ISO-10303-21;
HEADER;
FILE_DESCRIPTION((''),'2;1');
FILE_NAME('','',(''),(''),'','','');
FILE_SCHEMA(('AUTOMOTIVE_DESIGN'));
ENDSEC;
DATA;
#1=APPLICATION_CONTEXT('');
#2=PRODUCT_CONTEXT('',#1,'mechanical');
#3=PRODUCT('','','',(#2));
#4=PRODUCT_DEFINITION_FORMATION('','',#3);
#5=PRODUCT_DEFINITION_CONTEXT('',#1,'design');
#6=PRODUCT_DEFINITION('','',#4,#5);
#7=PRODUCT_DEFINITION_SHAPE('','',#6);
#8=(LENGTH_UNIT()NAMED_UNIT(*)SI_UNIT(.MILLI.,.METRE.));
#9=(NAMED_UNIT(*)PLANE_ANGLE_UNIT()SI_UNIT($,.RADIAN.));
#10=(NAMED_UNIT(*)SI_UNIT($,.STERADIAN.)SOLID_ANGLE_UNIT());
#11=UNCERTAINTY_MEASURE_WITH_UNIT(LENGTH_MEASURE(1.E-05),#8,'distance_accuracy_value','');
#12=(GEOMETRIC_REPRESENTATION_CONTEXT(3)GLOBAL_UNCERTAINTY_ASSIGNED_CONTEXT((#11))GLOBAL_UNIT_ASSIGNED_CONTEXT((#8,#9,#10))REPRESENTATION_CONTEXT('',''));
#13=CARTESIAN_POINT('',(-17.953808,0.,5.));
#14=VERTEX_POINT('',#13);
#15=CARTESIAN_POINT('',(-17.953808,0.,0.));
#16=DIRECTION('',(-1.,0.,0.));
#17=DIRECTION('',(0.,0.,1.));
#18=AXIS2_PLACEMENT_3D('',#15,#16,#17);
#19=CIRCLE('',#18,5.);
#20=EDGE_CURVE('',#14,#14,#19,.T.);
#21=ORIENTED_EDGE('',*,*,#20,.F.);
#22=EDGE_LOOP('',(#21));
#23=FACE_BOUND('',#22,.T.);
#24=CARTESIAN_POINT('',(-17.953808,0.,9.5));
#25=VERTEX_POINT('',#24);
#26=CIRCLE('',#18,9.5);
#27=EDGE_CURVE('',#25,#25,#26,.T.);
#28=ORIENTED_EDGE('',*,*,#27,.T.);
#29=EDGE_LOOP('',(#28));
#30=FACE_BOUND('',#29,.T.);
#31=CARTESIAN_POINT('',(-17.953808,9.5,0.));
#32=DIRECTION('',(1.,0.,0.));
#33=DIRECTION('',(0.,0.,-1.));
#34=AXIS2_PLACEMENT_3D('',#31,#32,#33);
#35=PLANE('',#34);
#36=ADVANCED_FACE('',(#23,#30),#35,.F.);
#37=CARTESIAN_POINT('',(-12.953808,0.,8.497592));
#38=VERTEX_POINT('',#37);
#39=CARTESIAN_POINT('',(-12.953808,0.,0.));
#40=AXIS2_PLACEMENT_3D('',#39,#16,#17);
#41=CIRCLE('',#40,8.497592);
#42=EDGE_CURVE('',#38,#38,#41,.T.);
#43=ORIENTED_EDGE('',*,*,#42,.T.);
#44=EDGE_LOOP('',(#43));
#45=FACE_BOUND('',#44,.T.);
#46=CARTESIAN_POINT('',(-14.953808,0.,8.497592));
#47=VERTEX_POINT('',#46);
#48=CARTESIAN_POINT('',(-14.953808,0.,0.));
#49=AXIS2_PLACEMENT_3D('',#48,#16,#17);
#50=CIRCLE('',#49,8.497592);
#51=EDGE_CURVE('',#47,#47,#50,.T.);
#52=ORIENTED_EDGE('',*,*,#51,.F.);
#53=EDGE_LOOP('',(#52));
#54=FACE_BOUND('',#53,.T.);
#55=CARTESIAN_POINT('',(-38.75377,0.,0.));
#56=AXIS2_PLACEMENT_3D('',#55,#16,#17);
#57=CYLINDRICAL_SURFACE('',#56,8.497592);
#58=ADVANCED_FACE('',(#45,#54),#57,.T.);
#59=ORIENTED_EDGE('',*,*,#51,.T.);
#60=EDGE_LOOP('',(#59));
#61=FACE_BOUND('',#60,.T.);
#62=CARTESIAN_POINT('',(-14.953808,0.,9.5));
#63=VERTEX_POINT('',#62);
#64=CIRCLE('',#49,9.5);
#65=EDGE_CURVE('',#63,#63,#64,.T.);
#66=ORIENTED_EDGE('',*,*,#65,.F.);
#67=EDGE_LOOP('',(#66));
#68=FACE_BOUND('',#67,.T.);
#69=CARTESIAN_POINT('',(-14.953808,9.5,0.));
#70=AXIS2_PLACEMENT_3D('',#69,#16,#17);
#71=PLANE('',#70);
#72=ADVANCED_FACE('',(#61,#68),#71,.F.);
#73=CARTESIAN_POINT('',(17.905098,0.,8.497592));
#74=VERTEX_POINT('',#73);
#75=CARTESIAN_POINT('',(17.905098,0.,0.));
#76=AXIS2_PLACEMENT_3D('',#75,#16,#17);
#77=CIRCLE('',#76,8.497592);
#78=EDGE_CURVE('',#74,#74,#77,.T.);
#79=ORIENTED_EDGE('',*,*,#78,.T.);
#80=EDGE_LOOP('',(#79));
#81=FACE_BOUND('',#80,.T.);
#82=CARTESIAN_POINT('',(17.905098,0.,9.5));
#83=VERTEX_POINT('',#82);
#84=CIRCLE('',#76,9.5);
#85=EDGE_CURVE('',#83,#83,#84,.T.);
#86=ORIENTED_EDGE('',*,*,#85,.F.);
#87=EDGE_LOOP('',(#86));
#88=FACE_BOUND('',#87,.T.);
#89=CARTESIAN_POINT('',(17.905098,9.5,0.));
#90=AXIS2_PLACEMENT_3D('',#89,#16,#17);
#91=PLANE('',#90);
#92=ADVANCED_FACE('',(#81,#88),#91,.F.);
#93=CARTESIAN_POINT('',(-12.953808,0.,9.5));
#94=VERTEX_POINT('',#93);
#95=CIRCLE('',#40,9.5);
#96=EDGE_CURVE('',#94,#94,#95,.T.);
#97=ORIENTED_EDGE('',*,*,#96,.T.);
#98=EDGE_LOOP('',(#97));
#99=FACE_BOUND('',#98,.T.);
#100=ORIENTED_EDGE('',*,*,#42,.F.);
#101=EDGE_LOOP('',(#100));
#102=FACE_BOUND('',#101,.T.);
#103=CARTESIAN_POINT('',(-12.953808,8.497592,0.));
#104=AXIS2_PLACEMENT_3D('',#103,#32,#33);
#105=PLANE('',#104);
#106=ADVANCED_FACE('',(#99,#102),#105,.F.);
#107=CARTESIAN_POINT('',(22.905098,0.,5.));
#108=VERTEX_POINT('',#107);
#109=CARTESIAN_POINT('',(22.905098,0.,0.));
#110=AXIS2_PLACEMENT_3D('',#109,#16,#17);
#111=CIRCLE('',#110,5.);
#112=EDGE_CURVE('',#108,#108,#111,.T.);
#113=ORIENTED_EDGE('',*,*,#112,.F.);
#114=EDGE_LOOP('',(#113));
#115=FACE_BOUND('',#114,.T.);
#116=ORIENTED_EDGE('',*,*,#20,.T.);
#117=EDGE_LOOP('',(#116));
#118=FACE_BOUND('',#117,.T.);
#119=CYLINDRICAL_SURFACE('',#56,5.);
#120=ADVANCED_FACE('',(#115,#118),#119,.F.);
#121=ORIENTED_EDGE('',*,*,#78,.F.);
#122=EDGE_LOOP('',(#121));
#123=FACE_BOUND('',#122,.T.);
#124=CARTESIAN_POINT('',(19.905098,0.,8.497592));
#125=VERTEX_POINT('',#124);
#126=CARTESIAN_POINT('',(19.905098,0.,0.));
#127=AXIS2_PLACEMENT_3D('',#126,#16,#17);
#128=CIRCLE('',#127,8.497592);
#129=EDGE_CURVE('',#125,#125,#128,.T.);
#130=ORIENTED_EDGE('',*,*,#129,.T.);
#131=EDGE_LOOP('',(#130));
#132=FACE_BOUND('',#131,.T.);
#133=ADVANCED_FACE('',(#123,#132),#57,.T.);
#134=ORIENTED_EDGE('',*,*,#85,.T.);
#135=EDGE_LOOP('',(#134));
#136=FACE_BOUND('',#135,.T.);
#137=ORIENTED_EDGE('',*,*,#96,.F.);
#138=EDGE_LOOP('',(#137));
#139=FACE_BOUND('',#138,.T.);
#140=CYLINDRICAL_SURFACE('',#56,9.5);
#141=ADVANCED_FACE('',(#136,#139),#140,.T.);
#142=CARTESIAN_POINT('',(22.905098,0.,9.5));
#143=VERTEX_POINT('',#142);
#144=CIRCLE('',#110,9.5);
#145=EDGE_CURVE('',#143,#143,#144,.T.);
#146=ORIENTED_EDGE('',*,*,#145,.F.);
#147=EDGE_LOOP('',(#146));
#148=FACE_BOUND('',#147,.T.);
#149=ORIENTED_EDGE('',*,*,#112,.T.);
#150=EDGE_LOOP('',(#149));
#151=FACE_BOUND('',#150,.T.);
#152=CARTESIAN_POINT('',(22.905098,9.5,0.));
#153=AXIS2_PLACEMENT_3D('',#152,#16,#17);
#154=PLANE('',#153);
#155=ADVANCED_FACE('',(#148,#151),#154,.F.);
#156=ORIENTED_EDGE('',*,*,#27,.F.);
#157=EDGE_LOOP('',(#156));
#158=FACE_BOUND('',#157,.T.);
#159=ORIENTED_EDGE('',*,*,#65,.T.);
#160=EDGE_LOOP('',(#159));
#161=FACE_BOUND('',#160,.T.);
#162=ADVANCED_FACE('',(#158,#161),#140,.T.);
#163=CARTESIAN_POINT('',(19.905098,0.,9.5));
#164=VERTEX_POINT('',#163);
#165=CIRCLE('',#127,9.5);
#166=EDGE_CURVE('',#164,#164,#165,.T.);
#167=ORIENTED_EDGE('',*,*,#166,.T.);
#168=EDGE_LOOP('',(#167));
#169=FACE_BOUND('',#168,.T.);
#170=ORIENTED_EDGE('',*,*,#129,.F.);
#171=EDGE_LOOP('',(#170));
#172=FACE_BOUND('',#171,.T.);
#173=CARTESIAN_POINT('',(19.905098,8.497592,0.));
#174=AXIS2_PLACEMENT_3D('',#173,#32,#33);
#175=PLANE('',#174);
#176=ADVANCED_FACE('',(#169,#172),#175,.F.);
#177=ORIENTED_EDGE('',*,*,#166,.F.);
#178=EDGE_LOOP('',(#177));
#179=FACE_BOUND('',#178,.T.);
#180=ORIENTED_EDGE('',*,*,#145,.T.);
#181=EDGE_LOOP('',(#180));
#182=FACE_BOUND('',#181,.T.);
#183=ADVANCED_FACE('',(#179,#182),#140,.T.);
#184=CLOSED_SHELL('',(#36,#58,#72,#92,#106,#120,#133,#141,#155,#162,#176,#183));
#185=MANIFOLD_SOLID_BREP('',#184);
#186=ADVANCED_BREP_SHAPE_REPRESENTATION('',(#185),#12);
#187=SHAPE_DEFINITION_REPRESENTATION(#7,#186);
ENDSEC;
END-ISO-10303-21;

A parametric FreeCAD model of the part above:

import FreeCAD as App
import Part
import Sketcher


def add_polygon(sketch, points):
    """Adds a closed chain of lines whose ends are joined by coincident constraints."""
    first, n = sketch.GeometryCount, len(points)
    for a, b in zip(points, points[1:] + points[:1]):
        sketch.addGeometry(Part.LineSegment(App.Vector(*a, 0), App.Vector(*b, 0)), False)
    for i in range(n):
        sketch.addConstraint(Sketcher.Constraint("Coincident", first + i, 2, first + (i + 1) % n, 1))

doc = App.newDocument("Part")
body = doc.addObject("PartDesign::Body", "Body")

# Sketch on XY plane
sketch1 = body.newObject("Sketcher::SketchObject", "Sketch")
sketch1.AttachmentSupport = (doc.getObject("XY_Plane"), [""])
sketch1.MapMode = "FlatFace"
add_polygon(sketch1, [(-15, 9.5), (-18, 9.5), (-18, 5), (22.9, 5), (22.9, 9.5), (19.9, 9.5), (19.9, 8.5), (17.9, 8.5), (17.9, 9.5), (-13, 9.5), (-13, 8.5), (-15, 8.5)])  # lines 0-11
sketch1.addConstraint([
    Sketcher.Constraint("Horizontal", 0),
    Sketcher.Constraint("Vertical", 1),
    Sketcher.Constraint("Horizontal", 2),
    Sketcher.Constraint("Vertical", 3),
    Sketcher.Constraint("Horizontal", 4),
    Sketcher.Constraint("Vertical", 5),
    Sketcher.Constraint("Horizontal", 6),
    Sketcher.Constraint("Vertical", 7),
    Sketcher.Constraint("Horizontal", 8),
    Sketcher.Constraint("Vertical", 9),
    Sketcher.Constraint("Horizontal", 10),
    Sketcher.Constraint("Vertical", 11),
    Sketcher.Constraint("Horizontal", 0, 2, 3, 2),
    Sketcher.Constraint("Horizontal", 4, 2, 7, 2),
    Sketcher.Constraint("Horizontal", 6, 2, 9, 2),
    Sketcher.Constraint("Equal", 0, 4),
    Sketcher.Constraint("Equal", 6, 10),
    Sketcher.Constraint("DistanceX", 0, 2, 0, 1, 3.0),
    Sketcher.Constraint("DistanceX", 6, 2, 6, 1, 2.0),
    Sketcher.Constraint("DistanceY", 1, 2, 1, 1, 4.5),
    Sketcher.Constraint("DistanceY", -1, 1, 1, 2, 5.0),
    Sketcher.Constraint("DistanceY", 5, 2, 5, 1, 1.002408),
    Sketcher.Constraint("DistanceX", 2, 1, 2, 2, 40.858906),
    Sketcher.Constraint("DistanceX", 0, 2, -1, 1, 17.953808),
])
revolution = body.newObject("PartDesign::Revolution", "Revolution")
revolution.Profile = sketch1
revolution.ReferenceAxis = (sketch1, ["H_Axis"])
revolution.Angle = 360

doc.recompute()
